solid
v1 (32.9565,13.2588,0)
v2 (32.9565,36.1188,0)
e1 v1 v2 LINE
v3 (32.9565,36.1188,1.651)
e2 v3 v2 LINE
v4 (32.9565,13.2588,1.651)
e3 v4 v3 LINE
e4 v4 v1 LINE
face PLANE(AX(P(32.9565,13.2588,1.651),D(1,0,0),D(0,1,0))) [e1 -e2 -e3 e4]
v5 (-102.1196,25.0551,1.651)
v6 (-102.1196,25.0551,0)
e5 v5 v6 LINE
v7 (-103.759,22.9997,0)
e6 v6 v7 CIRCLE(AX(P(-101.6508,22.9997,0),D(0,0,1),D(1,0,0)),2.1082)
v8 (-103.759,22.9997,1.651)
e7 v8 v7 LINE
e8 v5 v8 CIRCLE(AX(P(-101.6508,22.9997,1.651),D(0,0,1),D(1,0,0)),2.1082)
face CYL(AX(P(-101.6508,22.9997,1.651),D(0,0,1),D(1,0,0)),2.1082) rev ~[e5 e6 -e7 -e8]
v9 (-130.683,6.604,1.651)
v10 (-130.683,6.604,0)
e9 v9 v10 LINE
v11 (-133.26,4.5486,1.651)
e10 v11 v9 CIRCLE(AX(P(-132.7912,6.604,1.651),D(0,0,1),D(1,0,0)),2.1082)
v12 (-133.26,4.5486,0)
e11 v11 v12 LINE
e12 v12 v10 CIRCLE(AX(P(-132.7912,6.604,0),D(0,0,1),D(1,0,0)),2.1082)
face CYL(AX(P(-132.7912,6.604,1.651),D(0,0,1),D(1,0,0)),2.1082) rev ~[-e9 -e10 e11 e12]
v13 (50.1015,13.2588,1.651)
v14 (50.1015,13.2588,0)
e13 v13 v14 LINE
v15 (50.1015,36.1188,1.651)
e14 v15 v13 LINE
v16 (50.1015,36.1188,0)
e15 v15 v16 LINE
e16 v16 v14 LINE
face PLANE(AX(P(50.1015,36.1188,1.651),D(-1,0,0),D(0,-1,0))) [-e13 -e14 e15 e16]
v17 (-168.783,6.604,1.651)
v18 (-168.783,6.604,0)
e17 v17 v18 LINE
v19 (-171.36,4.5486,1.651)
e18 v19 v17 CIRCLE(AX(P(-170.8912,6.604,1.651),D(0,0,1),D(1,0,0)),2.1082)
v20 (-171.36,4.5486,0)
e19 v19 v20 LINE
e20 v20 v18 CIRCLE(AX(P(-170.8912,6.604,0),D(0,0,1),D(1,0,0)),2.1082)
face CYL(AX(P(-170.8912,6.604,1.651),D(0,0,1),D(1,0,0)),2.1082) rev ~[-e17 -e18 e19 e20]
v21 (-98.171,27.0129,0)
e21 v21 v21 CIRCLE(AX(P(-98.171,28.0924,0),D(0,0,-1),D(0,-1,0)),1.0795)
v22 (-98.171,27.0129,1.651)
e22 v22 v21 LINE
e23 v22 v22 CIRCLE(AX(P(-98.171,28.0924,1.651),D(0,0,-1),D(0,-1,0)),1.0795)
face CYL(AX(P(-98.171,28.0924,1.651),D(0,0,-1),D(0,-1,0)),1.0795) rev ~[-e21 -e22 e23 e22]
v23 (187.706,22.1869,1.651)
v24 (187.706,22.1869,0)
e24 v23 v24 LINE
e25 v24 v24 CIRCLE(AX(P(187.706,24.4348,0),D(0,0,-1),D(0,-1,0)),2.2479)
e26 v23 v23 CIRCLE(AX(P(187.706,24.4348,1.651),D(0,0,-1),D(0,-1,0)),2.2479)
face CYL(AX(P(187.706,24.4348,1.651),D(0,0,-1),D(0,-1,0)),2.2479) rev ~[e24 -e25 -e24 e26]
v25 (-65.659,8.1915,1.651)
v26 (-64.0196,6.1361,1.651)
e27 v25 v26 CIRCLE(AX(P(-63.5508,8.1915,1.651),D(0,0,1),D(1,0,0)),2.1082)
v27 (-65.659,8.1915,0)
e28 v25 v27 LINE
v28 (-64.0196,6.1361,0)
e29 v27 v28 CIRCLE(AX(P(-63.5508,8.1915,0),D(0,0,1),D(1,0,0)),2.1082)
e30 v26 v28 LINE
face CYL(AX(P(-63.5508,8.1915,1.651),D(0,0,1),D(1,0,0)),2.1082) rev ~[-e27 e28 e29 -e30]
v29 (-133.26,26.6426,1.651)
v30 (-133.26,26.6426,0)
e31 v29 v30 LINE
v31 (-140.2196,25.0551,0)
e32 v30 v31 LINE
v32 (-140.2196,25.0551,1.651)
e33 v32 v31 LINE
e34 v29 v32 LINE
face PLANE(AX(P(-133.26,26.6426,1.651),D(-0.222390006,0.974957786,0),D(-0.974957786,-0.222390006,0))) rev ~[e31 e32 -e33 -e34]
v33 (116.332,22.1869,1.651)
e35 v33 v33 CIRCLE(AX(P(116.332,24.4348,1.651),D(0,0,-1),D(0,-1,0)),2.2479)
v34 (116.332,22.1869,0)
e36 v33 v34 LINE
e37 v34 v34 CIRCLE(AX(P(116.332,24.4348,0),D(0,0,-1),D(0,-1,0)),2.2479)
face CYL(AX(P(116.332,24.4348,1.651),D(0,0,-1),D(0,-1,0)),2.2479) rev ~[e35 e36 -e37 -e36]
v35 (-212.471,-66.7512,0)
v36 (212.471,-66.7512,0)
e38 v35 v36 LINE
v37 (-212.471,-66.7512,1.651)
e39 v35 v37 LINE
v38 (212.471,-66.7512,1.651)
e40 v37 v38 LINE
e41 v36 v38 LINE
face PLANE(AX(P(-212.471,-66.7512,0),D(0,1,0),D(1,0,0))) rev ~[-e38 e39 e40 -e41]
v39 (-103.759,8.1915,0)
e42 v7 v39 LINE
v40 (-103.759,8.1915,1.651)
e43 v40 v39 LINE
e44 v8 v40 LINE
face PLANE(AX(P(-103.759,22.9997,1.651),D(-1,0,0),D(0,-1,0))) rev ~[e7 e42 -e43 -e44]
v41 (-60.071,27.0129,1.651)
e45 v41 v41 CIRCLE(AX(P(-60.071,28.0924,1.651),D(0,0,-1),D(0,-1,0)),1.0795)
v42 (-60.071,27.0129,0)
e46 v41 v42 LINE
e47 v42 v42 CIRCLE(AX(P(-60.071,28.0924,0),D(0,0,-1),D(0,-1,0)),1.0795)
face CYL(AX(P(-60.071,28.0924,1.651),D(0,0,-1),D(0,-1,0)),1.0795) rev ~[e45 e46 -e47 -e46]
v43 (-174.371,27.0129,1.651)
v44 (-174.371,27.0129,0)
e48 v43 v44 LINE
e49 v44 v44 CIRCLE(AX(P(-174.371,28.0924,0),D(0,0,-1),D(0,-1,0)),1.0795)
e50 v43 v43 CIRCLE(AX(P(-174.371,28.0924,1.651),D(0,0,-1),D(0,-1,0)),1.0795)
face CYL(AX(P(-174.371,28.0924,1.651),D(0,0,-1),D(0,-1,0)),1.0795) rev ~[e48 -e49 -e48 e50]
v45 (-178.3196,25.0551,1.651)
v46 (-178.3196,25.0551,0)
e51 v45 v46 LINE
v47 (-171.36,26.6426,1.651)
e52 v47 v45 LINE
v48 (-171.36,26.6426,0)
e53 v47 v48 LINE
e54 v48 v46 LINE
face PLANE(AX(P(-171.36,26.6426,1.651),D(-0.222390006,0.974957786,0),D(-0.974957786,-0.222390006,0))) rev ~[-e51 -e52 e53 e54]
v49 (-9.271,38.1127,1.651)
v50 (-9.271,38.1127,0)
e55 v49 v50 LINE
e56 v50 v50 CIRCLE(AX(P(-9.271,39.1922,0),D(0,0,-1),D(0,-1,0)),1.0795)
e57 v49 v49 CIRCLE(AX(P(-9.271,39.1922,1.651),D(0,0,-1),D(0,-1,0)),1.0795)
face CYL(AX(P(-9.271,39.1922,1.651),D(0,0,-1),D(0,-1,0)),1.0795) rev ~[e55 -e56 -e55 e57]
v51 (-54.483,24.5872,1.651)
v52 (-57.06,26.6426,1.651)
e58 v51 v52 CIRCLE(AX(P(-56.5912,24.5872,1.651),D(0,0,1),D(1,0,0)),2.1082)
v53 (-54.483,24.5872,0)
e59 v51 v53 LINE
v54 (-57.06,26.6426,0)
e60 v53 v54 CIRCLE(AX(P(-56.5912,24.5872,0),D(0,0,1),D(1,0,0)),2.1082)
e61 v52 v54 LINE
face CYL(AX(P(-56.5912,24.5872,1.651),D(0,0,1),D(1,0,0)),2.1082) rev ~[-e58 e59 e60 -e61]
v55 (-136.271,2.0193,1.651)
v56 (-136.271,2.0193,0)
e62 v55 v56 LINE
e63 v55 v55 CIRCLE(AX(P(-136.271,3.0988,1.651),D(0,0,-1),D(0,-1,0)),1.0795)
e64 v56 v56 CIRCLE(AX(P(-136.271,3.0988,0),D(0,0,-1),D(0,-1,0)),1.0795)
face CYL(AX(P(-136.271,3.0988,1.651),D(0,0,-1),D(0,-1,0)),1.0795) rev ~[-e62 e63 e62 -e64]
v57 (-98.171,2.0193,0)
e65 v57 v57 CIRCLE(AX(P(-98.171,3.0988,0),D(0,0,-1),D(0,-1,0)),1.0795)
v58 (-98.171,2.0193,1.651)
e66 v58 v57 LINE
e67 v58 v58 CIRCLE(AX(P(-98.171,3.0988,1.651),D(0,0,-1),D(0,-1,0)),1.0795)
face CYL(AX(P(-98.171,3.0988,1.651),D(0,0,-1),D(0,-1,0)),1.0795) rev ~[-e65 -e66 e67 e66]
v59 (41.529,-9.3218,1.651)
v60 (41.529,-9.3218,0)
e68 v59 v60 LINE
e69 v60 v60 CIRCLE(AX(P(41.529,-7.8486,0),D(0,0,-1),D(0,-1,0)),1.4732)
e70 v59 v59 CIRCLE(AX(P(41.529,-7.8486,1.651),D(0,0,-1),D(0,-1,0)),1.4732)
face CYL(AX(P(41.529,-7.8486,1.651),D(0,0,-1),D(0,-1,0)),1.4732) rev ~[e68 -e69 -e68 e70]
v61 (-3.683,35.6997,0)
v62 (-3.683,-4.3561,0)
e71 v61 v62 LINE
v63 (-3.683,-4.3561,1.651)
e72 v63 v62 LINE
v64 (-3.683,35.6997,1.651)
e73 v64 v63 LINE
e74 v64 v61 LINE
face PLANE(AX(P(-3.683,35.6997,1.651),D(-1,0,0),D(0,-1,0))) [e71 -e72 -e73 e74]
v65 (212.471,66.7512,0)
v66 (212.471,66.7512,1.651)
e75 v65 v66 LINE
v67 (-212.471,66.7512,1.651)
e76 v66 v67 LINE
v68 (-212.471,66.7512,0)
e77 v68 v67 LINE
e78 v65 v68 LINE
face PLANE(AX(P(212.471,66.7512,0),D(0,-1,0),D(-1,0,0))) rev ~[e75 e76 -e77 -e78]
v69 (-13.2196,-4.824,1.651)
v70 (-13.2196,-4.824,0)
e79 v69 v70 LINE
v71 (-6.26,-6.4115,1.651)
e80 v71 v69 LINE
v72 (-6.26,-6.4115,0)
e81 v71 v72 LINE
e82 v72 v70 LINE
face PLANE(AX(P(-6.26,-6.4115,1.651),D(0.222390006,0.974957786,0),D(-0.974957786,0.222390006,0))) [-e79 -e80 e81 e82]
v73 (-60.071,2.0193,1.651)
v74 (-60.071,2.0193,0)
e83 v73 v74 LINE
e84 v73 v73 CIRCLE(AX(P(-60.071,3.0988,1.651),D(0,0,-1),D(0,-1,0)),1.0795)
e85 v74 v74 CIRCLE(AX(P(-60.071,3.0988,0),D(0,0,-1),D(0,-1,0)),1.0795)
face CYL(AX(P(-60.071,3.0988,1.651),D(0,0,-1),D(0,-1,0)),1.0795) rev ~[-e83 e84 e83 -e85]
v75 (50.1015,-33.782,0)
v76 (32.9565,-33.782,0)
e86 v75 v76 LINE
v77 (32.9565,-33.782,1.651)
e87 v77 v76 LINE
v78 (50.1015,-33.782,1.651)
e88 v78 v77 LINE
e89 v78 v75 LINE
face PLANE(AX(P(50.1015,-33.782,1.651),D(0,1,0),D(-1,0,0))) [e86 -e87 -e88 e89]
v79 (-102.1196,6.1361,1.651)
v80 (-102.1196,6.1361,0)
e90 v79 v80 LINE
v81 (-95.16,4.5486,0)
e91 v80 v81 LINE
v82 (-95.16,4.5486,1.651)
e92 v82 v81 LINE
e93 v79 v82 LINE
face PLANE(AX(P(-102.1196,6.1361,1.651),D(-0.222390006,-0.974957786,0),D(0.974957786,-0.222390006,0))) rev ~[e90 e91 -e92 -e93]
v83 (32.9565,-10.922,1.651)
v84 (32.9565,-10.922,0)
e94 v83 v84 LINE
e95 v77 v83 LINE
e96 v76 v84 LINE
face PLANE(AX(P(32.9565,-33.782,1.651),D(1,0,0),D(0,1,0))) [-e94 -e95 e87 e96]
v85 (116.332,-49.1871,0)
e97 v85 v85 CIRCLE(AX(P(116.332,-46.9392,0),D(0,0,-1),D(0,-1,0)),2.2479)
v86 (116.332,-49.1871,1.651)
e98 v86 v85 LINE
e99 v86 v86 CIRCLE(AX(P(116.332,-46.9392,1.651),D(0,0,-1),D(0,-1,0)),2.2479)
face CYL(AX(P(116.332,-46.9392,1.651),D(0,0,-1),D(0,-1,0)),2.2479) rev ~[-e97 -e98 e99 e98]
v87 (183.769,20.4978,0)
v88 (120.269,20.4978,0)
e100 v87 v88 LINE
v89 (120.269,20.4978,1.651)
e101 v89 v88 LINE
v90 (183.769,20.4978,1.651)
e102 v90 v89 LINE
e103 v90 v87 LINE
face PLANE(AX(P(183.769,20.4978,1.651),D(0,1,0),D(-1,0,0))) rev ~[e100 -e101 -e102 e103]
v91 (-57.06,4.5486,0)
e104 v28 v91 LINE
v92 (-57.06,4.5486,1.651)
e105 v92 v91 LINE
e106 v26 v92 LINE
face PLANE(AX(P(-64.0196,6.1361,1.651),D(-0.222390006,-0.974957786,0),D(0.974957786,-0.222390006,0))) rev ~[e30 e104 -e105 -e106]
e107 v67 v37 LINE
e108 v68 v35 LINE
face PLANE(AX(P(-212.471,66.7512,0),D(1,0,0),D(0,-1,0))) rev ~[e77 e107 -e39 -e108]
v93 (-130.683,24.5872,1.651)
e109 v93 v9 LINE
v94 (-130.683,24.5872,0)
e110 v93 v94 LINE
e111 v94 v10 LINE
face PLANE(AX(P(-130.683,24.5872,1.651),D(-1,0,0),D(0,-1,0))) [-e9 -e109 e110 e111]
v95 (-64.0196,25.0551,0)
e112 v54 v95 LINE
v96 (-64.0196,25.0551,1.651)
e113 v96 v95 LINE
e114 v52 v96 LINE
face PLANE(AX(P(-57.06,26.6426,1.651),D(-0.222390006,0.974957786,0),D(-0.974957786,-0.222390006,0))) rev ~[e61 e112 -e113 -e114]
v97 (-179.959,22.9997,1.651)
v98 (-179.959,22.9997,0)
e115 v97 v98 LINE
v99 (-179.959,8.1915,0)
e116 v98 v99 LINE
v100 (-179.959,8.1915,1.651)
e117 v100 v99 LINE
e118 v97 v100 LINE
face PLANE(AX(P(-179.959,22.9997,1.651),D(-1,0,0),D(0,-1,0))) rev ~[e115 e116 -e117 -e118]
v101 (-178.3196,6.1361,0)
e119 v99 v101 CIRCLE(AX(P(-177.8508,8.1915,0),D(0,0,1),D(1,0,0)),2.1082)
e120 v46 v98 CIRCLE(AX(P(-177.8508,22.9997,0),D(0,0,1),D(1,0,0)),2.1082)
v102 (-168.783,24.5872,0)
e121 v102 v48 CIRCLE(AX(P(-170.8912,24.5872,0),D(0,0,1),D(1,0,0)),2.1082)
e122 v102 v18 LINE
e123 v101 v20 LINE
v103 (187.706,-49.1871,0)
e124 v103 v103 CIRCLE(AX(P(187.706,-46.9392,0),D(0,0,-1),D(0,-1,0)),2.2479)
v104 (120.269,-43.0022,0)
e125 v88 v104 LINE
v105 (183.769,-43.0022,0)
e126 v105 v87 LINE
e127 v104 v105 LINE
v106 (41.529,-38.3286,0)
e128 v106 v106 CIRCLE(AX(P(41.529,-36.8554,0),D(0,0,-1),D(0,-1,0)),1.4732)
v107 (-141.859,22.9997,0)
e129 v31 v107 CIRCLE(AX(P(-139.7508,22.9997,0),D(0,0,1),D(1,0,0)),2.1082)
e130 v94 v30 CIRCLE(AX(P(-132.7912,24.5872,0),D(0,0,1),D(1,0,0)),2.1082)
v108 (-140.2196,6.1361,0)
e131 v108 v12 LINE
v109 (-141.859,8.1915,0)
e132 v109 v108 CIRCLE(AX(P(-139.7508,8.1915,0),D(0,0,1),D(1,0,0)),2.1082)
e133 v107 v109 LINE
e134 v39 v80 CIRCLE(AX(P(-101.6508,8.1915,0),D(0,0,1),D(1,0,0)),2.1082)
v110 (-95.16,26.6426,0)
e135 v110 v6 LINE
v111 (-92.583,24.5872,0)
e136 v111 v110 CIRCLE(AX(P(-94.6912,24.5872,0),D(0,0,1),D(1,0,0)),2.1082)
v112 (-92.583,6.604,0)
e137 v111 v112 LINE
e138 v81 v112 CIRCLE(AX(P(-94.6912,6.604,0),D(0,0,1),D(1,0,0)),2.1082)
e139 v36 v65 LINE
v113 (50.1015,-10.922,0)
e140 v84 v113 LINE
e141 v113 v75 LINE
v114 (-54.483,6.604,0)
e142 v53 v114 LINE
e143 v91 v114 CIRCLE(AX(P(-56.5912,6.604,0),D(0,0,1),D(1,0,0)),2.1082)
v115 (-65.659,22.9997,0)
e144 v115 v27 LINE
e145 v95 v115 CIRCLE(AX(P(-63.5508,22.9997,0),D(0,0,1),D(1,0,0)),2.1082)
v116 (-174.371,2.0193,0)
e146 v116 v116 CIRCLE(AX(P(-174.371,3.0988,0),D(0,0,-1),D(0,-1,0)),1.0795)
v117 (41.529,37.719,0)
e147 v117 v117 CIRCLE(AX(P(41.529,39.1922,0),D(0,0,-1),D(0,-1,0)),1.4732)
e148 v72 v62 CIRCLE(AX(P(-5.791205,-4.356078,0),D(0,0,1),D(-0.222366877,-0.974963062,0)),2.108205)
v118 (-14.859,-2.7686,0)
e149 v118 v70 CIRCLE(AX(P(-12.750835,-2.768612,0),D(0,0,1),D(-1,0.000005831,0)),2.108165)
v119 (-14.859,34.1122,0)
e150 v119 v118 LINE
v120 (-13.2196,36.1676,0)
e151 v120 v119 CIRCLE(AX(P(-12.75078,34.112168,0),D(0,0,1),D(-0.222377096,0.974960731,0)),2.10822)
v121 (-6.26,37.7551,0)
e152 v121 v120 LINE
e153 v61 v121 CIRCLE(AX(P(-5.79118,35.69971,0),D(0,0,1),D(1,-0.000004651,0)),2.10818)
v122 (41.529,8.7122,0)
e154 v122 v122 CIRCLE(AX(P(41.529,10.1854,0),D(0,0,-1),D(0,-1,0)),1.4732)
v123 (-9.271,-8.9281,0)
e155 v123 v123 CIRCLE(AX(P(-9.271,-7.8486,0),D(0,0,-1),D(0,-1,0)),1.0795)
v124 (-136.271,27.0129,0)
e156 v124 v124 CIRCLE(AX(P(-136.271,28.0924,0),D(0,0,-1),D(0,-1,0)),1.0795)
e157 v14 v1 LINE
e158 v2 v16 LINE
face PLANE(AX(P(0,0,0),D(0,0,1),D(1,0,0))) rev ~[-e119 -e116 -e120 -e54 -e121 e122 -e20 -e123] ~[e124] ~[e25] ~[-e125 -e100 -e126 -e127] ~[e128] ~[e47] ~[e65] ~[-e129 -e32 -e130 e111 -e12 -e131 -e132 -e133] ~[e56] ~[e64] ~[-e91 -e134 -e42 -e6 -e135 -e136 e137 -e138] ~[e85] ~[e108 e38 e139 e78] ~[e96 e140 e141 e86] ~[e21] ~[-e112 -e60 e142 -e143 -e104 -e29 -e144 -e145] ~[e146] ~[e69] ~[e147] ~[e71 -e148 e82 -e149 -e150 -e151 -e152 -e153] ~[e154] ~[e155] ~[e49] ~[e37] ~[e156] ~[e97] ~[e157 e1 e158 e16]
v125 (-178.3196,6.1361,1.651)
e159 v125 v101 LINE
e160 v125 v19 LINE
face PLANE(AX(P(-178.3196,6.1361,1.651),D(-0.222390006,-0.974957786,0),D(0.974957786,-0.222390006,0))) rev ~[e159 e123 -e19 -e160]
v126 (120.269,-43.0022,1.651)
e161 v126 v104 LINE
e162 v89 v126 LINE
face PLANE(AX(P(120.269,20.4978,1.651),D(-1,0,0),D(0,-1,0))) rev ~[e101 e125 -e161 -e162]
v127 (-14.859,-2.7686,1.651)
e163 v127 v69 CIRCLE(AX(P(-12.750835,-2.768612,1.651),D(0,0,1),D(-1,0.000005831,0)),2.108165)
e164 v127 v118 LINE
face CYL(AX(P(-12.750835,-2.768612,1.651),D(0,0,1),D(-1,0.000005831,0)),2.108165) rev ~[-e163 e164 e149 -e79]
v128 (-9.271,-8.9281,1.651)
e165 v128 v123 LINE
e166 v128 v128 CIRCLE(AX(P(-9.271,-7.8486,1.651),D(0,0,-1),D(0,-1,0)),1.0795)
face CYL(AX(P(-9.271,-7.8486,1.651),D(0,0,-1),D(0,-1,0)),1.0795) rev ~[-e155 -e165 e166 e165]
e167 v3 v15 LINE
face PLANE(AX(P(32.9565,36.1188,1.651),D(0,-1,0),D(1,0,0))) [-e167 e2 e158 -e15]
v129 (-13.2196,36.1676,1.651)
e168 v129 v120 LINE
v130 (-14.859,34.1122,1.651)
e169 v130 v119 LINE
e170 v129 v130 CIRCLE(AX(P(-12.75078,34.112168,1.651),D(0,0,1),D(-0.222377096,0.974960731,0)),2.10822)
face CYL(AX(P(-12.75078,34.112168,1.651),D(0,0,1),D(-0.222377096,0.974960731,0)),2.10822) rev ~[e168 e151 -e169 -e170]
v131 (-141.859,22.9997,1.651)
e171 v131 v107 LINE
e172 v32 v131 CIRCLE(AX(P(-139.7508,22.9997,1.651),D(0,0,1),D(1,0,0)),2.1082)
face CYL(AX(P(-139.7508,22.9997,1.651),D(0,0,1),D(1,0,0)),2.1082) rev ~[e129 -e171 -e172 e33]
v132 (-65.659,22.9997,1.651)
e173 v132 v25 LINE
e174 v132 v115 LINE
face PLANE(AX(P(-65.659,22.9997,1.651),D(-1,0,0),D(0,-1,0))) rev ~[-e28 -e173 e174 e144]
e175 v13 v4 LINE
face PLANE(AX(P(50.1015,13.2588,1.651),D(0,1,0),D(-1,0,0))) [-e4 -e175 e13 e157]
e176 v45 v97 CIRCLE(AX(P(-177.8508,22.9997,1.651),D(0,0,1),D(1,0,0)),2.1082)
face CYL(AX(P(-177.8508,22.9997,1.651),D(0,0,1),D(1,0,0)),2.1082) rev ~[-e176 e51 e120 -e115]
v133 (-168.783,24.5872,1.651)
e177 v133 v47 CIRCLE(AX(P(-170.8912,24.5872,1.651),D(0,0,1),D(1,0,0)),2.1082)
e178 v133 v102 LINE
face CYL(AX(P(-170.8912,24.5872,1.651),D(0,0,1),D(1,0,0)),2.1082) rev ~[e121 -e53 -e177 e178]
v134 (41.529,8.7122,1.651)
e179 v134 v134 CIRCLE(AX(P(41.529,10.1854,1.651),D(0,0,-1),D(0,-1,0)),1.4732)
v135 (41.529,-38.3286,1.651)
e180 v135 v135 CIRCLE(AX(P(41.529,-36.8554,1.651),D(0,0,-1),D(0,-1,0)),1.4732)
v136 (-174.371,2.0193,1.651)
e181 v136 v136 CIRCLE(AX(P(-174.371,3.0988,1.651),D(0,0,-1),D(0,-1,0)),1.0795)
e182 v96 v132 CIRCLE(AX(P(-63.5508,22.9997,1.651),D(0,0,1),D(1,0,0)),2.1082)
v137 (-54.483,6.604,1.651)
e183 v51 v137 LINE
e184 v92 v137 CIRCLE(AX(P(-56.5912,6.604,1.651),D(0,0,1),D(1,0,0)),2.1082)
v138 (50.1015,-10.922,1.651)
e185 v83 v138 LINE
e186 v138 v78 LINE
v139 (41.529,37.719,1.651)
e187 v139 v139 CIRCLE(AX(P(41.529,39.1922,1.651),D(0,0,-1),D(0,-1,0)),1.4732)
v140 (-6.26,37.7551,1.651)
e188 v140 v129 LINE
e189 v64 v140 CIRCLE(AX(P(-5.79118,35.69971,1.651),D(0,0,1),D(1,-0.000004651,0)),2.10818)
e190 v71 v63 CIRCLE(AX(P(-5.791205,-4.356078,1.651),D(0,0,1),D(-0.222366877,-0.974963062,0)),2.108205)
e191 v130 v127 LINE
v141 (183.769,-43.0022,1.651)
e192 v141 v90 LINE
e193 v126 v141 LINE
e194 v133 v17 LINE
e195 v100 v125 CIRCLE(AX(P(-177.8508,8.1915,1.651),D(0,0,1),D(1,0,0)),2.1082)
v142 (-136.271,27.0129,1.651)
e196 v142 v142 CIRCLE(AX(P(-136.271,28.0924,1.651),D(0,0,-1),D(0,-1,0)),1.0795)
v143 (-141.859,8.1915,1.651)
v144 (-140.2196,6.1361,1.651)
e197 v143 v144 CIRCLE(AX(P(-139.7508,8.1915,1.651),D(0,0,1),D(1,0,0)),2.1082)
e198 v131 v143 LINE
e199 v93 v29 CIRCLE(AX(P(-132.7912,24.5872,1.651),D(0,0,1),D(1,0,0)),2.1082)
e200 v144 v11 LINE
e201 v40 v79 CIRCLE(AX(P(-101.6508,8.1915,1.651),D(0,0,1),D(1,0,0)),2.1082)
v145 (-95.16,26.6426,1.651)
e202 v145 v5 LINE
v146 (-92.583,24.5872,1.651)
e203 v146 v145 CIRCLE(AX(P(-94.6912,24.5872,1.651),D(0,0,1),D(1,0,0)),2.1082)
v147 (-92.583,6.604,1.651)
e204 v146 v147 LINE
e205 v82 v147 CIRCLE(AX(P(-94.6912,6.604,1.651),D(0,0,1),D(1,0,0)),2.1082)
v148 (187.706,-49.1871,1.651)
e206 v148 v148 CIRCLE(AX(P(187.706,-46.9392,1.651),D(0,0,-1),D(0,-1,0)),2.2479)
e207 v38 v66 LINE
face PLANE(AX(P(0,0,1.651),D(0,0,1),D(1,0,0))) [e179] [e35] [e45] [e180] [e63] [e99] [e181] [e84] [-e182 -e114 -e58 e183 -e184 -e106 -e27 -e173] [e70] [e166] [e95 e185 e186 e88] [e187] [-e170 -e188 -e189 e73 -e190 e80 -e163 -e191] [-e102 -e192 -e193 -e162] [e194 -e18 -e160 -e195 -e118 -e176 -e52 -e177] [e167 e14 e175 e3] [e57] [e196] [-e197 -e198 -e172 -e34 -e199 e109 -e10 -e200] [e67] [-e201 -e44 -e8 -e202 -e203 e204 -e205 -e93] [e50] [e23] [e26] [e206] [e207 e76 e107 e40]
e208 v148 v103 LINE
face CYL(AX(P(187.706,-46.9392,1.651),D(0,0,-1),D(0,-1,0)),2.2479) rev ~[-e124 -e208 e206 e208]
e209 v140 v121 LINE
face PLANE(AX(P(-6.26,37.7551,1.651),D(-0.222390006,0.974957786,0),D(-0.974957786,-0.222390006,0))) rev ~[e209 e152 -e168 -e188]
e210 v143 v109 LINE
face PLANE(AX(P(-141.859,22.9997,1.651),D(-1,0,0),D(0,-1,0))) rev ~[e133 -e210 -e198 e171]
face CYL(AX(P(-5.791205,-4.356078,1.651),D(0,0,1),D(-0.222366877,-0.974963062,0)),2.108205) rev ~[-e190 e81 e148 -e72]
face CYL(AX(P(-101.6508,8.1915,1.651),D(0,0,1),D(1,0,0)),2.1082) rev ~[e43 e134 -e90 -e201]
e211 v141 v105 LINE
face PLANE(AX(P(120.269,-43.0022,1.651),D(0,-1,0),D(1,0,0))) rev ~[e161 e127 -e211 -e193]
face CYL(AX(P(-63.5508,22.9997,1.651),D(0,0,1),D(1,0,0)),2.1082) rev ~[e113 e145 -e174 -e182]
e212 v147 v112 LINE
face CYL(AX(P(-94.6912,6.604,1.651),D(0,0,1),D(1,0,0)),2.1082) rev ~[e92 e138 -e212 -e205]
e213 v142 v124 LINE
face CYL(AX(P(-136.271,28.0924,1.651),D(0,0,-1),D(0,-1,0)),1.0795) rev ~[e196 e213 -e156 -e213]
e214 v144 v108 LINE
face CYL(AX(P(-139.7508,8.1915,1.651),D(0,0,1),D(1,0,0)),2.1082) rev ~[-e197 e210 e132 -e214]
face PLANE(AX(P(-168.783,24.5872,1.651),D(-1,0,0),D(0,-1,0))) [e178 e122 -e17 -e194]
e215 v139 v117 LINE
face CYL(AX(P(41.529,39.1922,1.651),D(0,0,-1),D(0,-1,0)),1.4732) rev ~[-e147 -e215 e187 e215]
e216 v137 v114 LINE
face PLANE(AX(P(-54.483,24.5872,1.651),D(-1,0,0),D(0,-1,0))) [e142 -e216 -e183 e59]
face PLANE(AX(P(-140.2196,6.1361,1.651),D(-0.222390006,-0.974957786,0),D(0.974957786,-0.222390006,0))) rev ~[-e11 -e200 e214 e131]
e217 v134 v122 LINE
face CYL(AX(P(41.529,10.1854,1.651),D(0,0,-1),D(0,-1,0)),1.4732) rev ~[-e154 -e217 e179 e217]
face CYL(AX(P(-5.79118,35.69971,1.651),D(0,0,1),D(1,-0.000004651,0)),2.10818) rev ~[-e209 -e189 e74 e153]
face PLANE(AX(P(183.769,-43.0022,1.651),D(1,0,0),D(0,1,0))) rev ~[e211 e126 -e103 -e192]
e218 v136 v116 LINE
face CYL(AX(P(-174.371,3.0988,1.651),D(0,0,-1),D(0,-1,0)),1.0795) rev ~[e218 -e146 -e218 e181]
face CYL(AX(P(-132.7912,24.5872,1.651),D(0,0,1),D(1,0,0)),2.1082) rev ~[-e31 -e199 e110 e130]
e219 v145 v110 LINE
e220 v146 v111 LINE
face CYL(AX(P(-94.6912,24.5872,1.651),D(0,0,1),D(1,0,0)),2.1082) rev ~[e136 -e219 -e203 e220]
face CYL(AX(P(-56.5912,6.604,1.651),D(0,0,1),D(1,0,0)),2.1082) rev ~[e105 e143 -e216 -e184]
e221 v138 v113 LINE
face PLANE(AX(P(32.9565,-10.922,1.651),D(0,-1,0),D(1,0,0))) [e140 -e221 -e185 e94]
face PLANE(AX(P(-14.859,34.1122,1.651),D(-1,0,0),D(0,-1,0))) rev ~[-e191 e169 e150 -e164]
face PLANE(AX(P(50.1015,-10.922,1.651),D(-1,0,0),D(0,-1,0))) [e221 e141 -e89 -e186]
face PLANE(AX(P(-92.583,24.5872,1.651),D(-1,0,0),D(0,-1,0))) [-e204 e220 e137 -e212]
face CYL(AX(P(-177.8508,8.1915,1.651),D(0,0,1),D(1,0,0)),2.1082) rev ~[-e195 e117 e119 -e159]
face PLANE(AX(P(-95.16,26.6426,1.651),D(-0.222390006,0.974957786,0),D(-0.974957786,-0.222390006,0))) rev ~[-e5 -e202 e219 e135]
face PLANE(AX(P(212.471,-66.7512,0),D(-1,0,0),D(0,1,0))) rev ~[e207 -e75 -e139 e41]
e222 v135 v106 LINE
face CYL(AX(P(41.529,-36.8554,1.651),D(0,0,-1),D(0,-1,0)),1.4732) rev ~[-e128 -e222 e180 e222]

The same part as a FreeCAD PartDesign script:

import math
import FreeCAD as App
import Part
import Sketcher
Q = App.Units.Quantity


def add_polygon(sketch, points):
    """Adds a closed chain of lines whose ends are joined by coincident constraints."""
    first, n = sketch.GeometryCount, len(points)
    for a, b in zip(points, points[1:] + points[:1]):
        sketch.addGeometry(Part.LineSegment(App.Vector(*a, 0), App.Vector(*b, 0)), False)
    for i in range(n):
        sketch.addConstraint(Sketcher.Constraint("Coincident", first + i, 2, first + (i + 1) % n, 1))

doc = App.newDocument("Part")
body = doc.addObject("PartDesign::Body", "Body")

sketch1 = body.newObject("Sketcher::SketchObject", "Sketch")
sketch1.AttachmentSupport = (doc.getObject("XY_Plane"), [""])
sketch1.MapMode = "FlatFace"
add_polygon(sketch1, [(-212, 67), (-212, -67), (212, -67), (212, 67)])
sketch1.addConstraint([
    Sketcher.Constraint("Vertical", 0),
    Sketcher.Constraint("Horizontal", 1),
    Sketcher.Constraint("Vertical", 2),
    Sketcher.Constraint("Horizontal", 3),
    Sketcher.Constraint("Symmetric", 0, 2, 2, 2, -1, 1),
    Sketcher.Constraint("DistanceX", 1, 1, 1, 2, Q("16.73 in")),
    Sketcher.Constraint("DistanceY", 0, 2, 0, 1, Q("5.256 in")),
])
pad1 = body.newObject("PartDesign::Pad", "Pad")
pad1.Profile = sketch1
pad1.Length = Q("0.065 in")

sketch2 = body.newObject("Sketcher::SketchObject", "Sketch001")
sketch2.AttachmentSupport = (doc.getObject("XY_Plane"), [""])
sketch2.MapMode = "FlatFace"
sketch2.AttachmentOffset = App.Placement(App.Vector(0, 0, 0.065 * 25.4), App.Rotation())
sketch2.addGeometry([
    Part.Circle(App.Vector(187.7, 24.4, 0), App.Vector(0, 0, 1), 2.2),
    Part.Circle(App.Vector(116.3, 24.4, 0), App.Vector(0, 0, 1), 2.2),
    Part.Circle(App.Vector(116.3, -46.9, 0), App.Vector(0, 0, 1), 2.2),
    Part.Circle(App.Vector(187.7, -46.9, 0), App.Vector(0, 0, 1), 2.2),
], False)
sketch2.addConstraint([
    Sketcher.Constraint("Equal", 0, 1),
    Sketcher.Constraint("Equal", 1, 2),
    Sketcher.Constraint("Equal", 2, 3),
    Sketcher.Constraint("Horizontal", 0, 3, 1, 3),
    Sketcher.Constraint("Horizontal", 2, 3, 3, 3),
    Sketcher.Constraint("Vertical", 1, 3, 2, 3),
    Sketcher.Constraint("Vertical", 0, 3, 3, 3),
    Sketcher.Constraint("Diameter", 0, Q("0.177 in")),
    Sketcher.Constraint("DistanceX", -1, 1, 0, 3, Q("7.39 in")),
    Sketcher.Constraint("DistanceX", -1, 1, 1, 3, Q("4.58 in")),
    Sketcher.Constraint("DistanceY", 2, 3, 1, 3, Q("2.81 in")),
    Sketcher.Constraint("DistanceY", -1, 1, 0, 3, Q("0.962 in")),
])
doc.recompute()
hole = body.newObject("PartDesign::Hole", "Hole")
hole.Profile = sketch2
hole.ThreadType = "None"
hole.Diameter = Q("0.177 in")
hole.DepthType = "ThroughAll"

sketch3 = body.newObject("Sketcher::SketchObject", "Sketch002")
sketch3.AttachmentSupport = (doc.getObject("XY_Plane"), [""])
sketch3.MapMode = "FlatFace"
sketch3.AttachmentOffset = App.Placement(App.Vector(0, 0, 0.065 * 25.4), App.Rotation())
add_polygon(sketch3, [(120, 20), (120, -43), (184, -43), (184, 20)])
sketch3.addConstraint([
    Sketcher.Constraint("Vertical", 0),
    Sketcher.Constraint("Horizontal", 1),
    Sketcher.Constraint("Vertical", 2),
    Sketcher.Constraint("Horizontal", 3),
    Sketcher.Constraint("Equal", 3, 0),
    Sketcher.Constraint("DistanceX", 1, 1, 1, 2, Q("2.5 in")),
    Sketcher.Constraint("DistanceX", -1, 1, 0, 2, Q("4.735 in")),
    Sketcher.Constraint("DistanceY", 0, 2, -1, 1, Q("1.693 in")),
])
pocket1 = body.newObject("PartDesign::Pocket", "Pocket")
pocket1.Profile = sketch3
pocket1.Type = "ThroughAll"

sketch4 = body.newObject("Sketcher::SketchObject", "Sketch003")
sketch4.AttachmentSupport = (doc.getObject("XY_Plane"), [""])
sketch4.MapMode = "FlatFace"
sketch4.AttachmentOffset = App.Placement(App.Vector(0, 0, 0.065 * 25.4), App.Rotation())
sketch4.addGeometry([
    Part.Circle(App.Vector(-174.4, 28.1, 0), App.Vector(0, 0, 1), 1.1),
    Part.Circle(App.Vector(-174.4, 3.1, 0), App.Vector(0, 0, 1), 1.1),
    Part.Circle(App.Vector(-136.3, 3.1, 0), App.Vector(0, 0, 1), 1.1),
    Part.Circle(App.Vector(-136.3, 28.1, 0), App.Vector(0, 0, 1), 1.1),
    Part.Circle(App.Vector(-98.2, 28.1, 0), App.Vector(0, 0, 1), 1.1),
    Part.Circle(App.Vector(-98.2, 3.1, 0), App.Vector(0, 0, 1), 1.1),
    Part.Circle(App.Vector(-60.1, 28.1, 0), App.Vector(0, 0, 1), 1.1),
    Part.Circle(App.Vector(-60.1, 3.1, 0), App.Vector(0, 0, 1), 1.1),
], False)
sketch4.addConstraint([
    Sketcher.Constraint("Equal", 0, 1),
    Sketcher.Constraint("Equal", 1, 2),
    Sketcher.Constraint("Equal", 2, 3),
    Sketcher.Constraint("Equal", 3, 4),
    Sketcher.Constraint("Equal", 4, 5),
    Sketcher.Constraint("Equal", 5, 6),
    Sketcher.Constraint("Equal", 6, 7),
    Sketcher.Constraint("Horizontal", 1, 3, 2, 3),
    Sketcher.Constraint("Horizontal", 0, 3, 3, 3),
    Sketcher.Constraint("Horizontal", 3, 3, 4, 3),
    Sketcher.Constraint("Horizontal", 2, 3, 5, 3),
    Sketcher.Constraint("Horizontal", 4, 3, 6, 3),
    Sketcher.Constraint("Horizontal", 5, 3, 7, 3),
    Sketcher.Constraint("Vertical", 0, 3, 1, 3),
    Sketcher.Constraint("Vertical", 2, 3, 3, 3),
    Sketcher.Constraint("Vertical", 4, 3, 5, 3),
    Sketcher.Constraint("Vertical", 6, 3, 7, 3),
    Sketcher.Constraint("Diameter", 0, Q("0.085 in")),
    Sketcher.Constraint("DistanceX", 0, 3, 4, 3, Q("3 in")),
    Sketcher.Constraint("DistanceX", 3, 3, 6, 3, Q("3 in")),
    Sketcher.Constraint("DistanceX", 1, 3, 2, 3, Q("1.5 in")),
    Sketcher.Constraint("DistanceX", 0, 3, -1, 1, Q("6.865 in")),
    Sketcher.Constraint("DistanceY", -1, 1, 0, 3, Q("1.106 in")),
    Sketcher.Constraint("DistanceY", -1, 1, 1, 3, Q("0.122 in")),
])
doc.recompute()
hole2 = body.newObject("PartDesign::Hole", "Hole001")
hole2.Profile = sketch4
hole2.ThreadType = "None"
hole2.Diameter = Q("0.085 in")
hole2.DepthType = "Dimension"
hole2.Depth = Q("0.349 in")
hole2.DrillPoint = "Angled"
hole2.DrillPointAngle = 118

sketch5 = body.newObject("Sketcher::SketchObject", "Sketch004")
sketch5.AttachmentSupport = (doc.getObject("XY_Plane"), [""])
sketch5.MapMode = "FlatFace"
sketch5.AttachmentOffset = App.Placement(App.Vector(0, 0, 0.065 * 25.4), App.Rotation())
sketch5.addGeometry([
    Part.Circle(App.Vector(41.5, 39.2, 0), App.Vector(0, 0, 1), 1.5),
    Part.Circle(App.Vector(41.5, 10.2, 0), App.Vector(0, 0, 1), 1.5),
    Part.Circle(App.Vector(41.5, -7.8, 0), App.Vector(0, 0, 1), 1.5),
    Part.Circle(App.Vector(41.5, -36.9, 0), App.Vector(0, 0, 1), 1.5),
], False)
sketch5.addConstraint([
    Sketcher.Constraint("Equal", 0, 1),
    Sketcher.Constraint("Equal", 1, 2),
    Sketcher.Constraint("Equal", 2, 3),
    Sketcher.Constraint("Vertical", 0, 3, 1, 3),
    Sketcher.Constraint("Vertical", 1, 3, 2, 3),
    Sketcher.Constraint("Vertical", 2, 3, 3, 3),
    Sketcher.Constraint("Diameter", 0, Q("0.116 in")),
    Sketcher.Constraint("DistanceY", 2, 3, 1, 3, Q("0.71 in")),
    Sketcher.Constraint("DistanceX", -1, 1, 0, 3, Q("1.635 in")),
    Sketcher.Constraint("DistanceY", -1, 1, 0, 3, Q("1.543 in")),
    Sketcher.Constraint("DistanceY", -1, 1, 1, 3, Q("0.401 in")),
    Sketcher.Constraint("DistanceY", 3, 3, -1, 1, Q("1.451 in")),
])
doc.recompute()
hole3 = body.newObject("PartDesign::Hole", "Hole002")
hole3.Profile = sketch5
hole3.ThreadType = "None"
hole3.Diameter = Q("0.116 in")
hole3.DepthType = "ThroughAll"

sketch6 = body.newObject("Sketcher::SketchObject", "Sketch005")
sketch6.AttachmentSupport = (doc.getObject("XY_Plane"), [""])
sketch6.MapMode = "FlatFace"
sketch6.AttachmentOffset = App.Placement(App.Vector(0, 0, 0.065 * 25.4), App.Rotation())
add_polygon(sketch6, [(50, 36), (33, 36), (33, 13), (50, 13)])
add_polygon(sketch6, [(50, -11), (33, -11), (33, -34), (50, -34)])
sketch6.addConstraint([
    Sketcher.Constraint("Horizontal", 0),
    Sketcher.Constraint("Vertical", 1),
    Sketcher.Constraint("Horizontal", 2),
    Sketcher.Constraint("Vertical", 3),
    Sketcher.Constraint("Horizontal", 4),
    Sketcher.Constraint("Vertical", 5),
    Sketcher.Constraint("Horizontal", 6),
    Sketcher.Constraint("Vertical", 7),
    Sketcher.Constraint("Vertical", 1, 2, 4, 2),
    Sketcher.Constraint("Vertical", 3, 2, 6, 2),
    Sketcher.Constraint("Equal", 3, 5),
    Sketcher.Constraint("DistanceY", 1, 2, 1, 1, Q("0.9 in")),
    Sketcher.Constraint("DistanceX", 0, 2, 0, 1, Q("0.675 in")),
    Sketcher.Constraint("DistanceY", 4, 2, 0, 2, Q("1.852 in")),
    Sketcher.Constraint("DistanceY", 4, 2, -1, 1, Q("0.43 in")),
    Sketcher.Constraint("DistanceX", -1, 1, 0, 2, Q("1.2975 in")),
])
pocket2 = body.newObject("PartDesign::Pocket", "Pocket001")
pocket2.Profile = sketch6
pocket2.Type = "ThroughAll"

sketch7 = body.newObject("Sketcher::SketchObject", "Sketch006")
sketch7.AttachmentSupport = (doc.getObject("XY_Plane"), [""])
sketch7.MapMode = "FlatFace"
sketch7.AttachmentOffset = App.Placement(App.Vector(0, 0, 0.065 * 25.4), App.Rotation())
sketch7.addGeometry([
    Part.Circle(App.Vector(-9.3, 39.2, 0), App.Vector(0, 0, 1), 1.1),
    Part.Circle(App.Vector(-9.3, -7.8, 0), App.Vector(0, 0, 1), 1.1),
], False)
sketch7.addConstraint([
    Sketcher.Constraint("Equal", 0, 1),
    Sketcher.Constraint("Vertical", 0, 3, 1, 3),
    Sketcher.Constraint("Diameter", 0, Q("0.085 in")),
    Sketcher.Constraint("DistanceX", 0, 3, -1, 1, Q("0.365 in")),
    Sketcher.Constraint("DistanceY", -1, 1, 0, 3, Q("1.543 in")),
    Sketcher.Constraint("DistanceY", 1, 3, -1, 1, Q("0.309 in")),
])
doc.recompute()
hole4 = body.newObject("PartDesign::Hole", "Hole003")
hole4.Profile = sketch7
hole4.ThreadType = "None"
hole4.Diameter = Q("0.085 in")
hole4.DepthType = "ThroughAll"

sketch8 = body.newObject("Sketcher::SketchObject", "Sketch007")
sketch8.AttachmentSupport = (doc.getObject("XY_Plane"), [""])
sketch8.MapMode = "FlatFace"
sketch8.AttachmentOffset = App.Placement(App.Vector(0, 0, 0.065 * 25.4), App.Rotation())
sketch8.addGeometry([
    Part.LineSegment(App.Vector(-3.7, -4.4, 0), App.Vector(-3.7, 35.7, 0)),
    Part.ArcOfCircle(Part.Circle(App.Vector(-5.8, 35.7, 0), App.Vector(0, 0, 1), 2.1), math.radians(0), math.radians(103)),
    Part.LineSegment(App.Vector(-6.3, 37.8, 0), App.Vector(-13.2, 36.2, 0)),
    Part.ArcOfCircle(Part.Circle(App.Vector(-12.8, 34.1, 0), App.Vector(0, 0, 1), 2.1), math.radians(103), math.radians(180)),
    Part.LineSegment(App.Vector(-14.9, 34.1, 0), App.Vector(-14.9, -2.8, 0)),
    Part.ArcOfCircle(Part.Circle(App.Vector(-12.8, -2.8, 0), App.Vector(0, 0, 1), 2.1), math.radians(180), math.radians(257)),
    Part.LineSegment(App.Vector(-13.2, -4.8, 0), App.Vector(-6.3, -6.4, 0)),
    Part.ArcOfCircle(Part.Circle(App.Vector(-5.8, -4.4, 0), App.Vector(0, 0, 1), 2.1), math.radians(-103), math.radians(0)),
], False)
sketch8.addConstraint([
    Sketcher.Constraint("Tangent", 0, 2, 1, 1),
    Sketcher.Constraint("Tangent", 1, 2, 2, 1),
    Sketcher.Constraint("Tangent", 2, 2, 3, 1),
    Sketcher.Constraint("Tangent", 3, 2, 4, 1),
    Sketcher.Constraint("Tangent", 4, 2, 5, 1),
    Sketcher.Constraint("Tangent", 5, 2, 6, 1),
    Sketcher.Constraint("Tangent", 6, 2, 7, 1),
    Sketcher.Constraint("Tangent", 7, 2, 0, 1),
    Sketcher.Constraint("Vertical", 0),
    Sketcher.Constraint("Vertical", 4),
    Sketcher.Constraint("Equal", 1, 3),
    Sketcher.Constraint("Equal", 3, 5),
    Sketcher.Constraint("Equal", 5, 7),
    Sketcher.Constraint("Vertical", 2, 2, 5, 2),
    Sketcher.Constraint("Radius", 1, Q("0.083 in")),
    Sketcher.Constraint("DistanceY", 0, 1, 0, 2, Q("1.577 in")),
    Sketcher.Constraint("DistanceY", 4, 2, 4, 1, Q("1.452 in")),
    Sketcher.Constraint("DistanceX", 3, 2, 0, 2, Q("0.44 in")),
    Sketcher.Constraint("DistanceX", 1, 3, -1, 1, Q("0.228 in")),
    Sketcher.Constraint("DistanceY", -1, 1, 3, 3, Q("1.343 in")),
])
pocket3 = body.newObject("PartDesign::Pocket", "Pocket002")
pocket3.Profile = sketch8
pocket3.Type = "ThroughAll"

sketch9 = body.newObject("Sketcher::SketchObject", "Sketch008")
sketch9.AttachmentSupport = (doc.getObject("XY_Plane"), [""])
sketch9.MapMode = "FlatFace"
sketch9.AttachmentOffset = App.Placement(App.Vector(0, 0, 0.065 * 25.4), App.Rotation())
sketch9.addGeometry([
    Part.ArcOfCircle(Part.Circle(App.Vector(-170.9, 24.6, 0), App.Vector(0, 0, 1), 2.1), math.radians(0), math.radians(103)),
    Part.LineSegment(App.Vector(-171.4, 26.6, 0), App.Vector(-178.3, 25.1, 0)),
    Part.ArcOfCircle(Part.Circle(App.Vector(-177.9, 23, 0), App.Vector(0, 0, 1), 2.1), math.radians(103), math.radians(180)),
    Part.LineSegment(App.Vector(-180, 23, 0), App.Vector(-180, 8.2, 0)),
    Part.ArcOfCircle(Part.Circle(App.Vector(-177.9, 8.2, 0), App.Vector(0, 0, 1), 2.1), math.radians(180), math.radians(257)),
    Part.LineSegment(App.Vector(-178.3, 6.1, 0), App.Vector(-171.4, 4.5, 0)),
    Part.ArcOfCircle(Part.Circle(App.Vector(-170.9, 6.6, 0), App.Vector(0, 0, 1), 2.1), math.radians(-103), math.radians(0)),
    Part.LineSegment(App.Vector(-168.8, 6.6, 0), App.Vector(-168.8, 24.6, 0)),
    Part.ArcOfCircle(Part.Circle(App.Vector(-132.8, 24.6, 0), App.Vector(0, 0, 1), 2.1), math.radians(0), math.radians(103)),
    Part.LineSegment(App.Vector(-133.3, 26.6, 0), App.Vector(-140.2, 25.1, 0)),
    Part.ArcOfCircle(Part.Circle(App.Vector(-139.8, 23, 0), App.Vector(0, 0, 1), 2.1), math.radians(103), math.radians(180)),
    Part.LineSegment(App.Vector(-141.9, 23, 0), App.Vector(-141.9, 8.2, 0)),
    Part.ArcOfCircle(Part.Circle(App.Vector(-139.8, 8.2, 0), App.Vector(0, 0, 1), 2.1), math.radians(180), math.radians(257)),
    Part.LineSegment(App.Vector(-140.2, 6.1, 0), App.Vector(-133.3, 4.5, 0)),
    Part.ArcOfCircle(Part.Circle(App.Vector(-132.8, 6.6, 0), App.Vector(0, 0, 1), 2.1), math.radians(-103), math.radians(0)),
    Part.LineSegment(App.Vector(-130.7, 6.6, 0), App.Vector(-130.7, 24.6, 0)),
    Part.ArcOfCircle(Part.Circle(App.Vector(-94.7, 24.6, 0), App.Vector(0, 0, 1), 2.1), math.radians(0), math.radians(103)),
    Part.LineSegment(App.Vector(-95.2, 26.6, 0), App.Vector(-102.1, 25.1, 0)),
    Part.ArcOfCircle(Part.Circle(App.Vector(-101.7, 23, 0), App.Vector(0, 0, 1), 2.1), math.radians(103), math.radians(180)),
    Part.LineSegment(App.Vector(-103.8, 23, 0), App.Vector(-103.8, 8.2, 0)),
    Part.ArcOfCircle(Part.Circle(App.Vector(-101.7, 8.2, 0), App.Vector(0, 0, 1), 2.1), math.radians(180), math.radians(257)),
    Part.LineSegment(App.Vector(-102.1, 6.1, 0), App.Vector(-95.2, 4.5, 0)),
    Part.ArcOfCircle(Part.Circle(App.Vector(-94.7, 6.6, 0), App.Vector(0, 0, 1), 2.1), math.radians(-103), math.radians(0)),
    Part.LineSegment(App.Vector(-92.6, 6.6, 0), App.Vector(-92.6, 24.6, 0)),
    Part.ArcOfCircle(Part.Circle(App.Vector(-56.6, 24.6, 0), App.Vector(0, 0, 1), 2.1), math.radians(0), math.radians(103)),
    Part.LineSegment(App.Vector(-57.1, 26.6, 0), App.Vector(-64, 25.1, 0)),
    Part.ArcOfCircle(Part.Circle(App.Vector(-63.6, 23, 0), App.Vector(0, 0, 1), 2.1), math.radians(103), math.radians(180)),
    Part.LineSegment(App.Vector(-65.7, 23, 0), App.Vector(-65.7, 8.2, 0)),
    Part.ArcOfCircle(Part.Circle(App.Vector(-63.6, 8.2, 0), App.Vector(0, 0, 1), 2.1), math.radians(180), math.radians(257)),
    Part.LineSegment(App.Vector(-64, 6.1, 0), App.Vector(-57.1, 4.5, 0)),
    Part.ArcOfCircle(Part.Circle(App.Vector(-56.6, 6.6, 0), App.Vector(0, 0, 1), 2.1), math.radians(-103), math.radians(0)),
    Part.LineSegment(App.Vector(-54.5, 6.6, 0), App.Vector(-54.5, 24.6, 0)),
], False)
sketch9.addConstraint([
    Sketcher.Constraint("Tangent", 0, 2, 1, 1),
    Sketcher.Constraint("Tangent", 1, 2, 2, 1),
    Sketcher.Constraint("Tangent", 2, 2, 3, 1),
    Sketcher.Constraint("Tangent", 3, 2, 4, 1),
    Sketcher.Constraint("Tangent", 4, 2, 5, 1),
    Sketcher.Constraint("Tangent", 5, 2, 6, 1),
    Sketcher.Constraint("Tangent", 6, 2, 7, 1),
    Sketcher.Constraint("Tangent", 7, 2, 0, 1),
    Sketcher.Constraint("Tangent", 8, 2, 9, 1),
    Sketcher.Constraint("Tangent", 9, 2, 10, 1),
    Sketcher.Constraint("Tangent", 10, 2, 11, 1),
    Sketcher.Constraint("Tangent", 11, 2, 12, 1),
    Sketcher.Constraint("Tangent", 12, 2, 13, 1),
    Sketcher.Constraint("Tangent", 13, 2, 14, 1),
    Sketcher.Constraint("Tangent", 14, 2, 15, 1),
    Sketcher.Constraint("Tangent", 15, 2, 8, 1),
    Sketcher.Constraint("Tangent", 16, 2, 17, 1),
    Sketcher.Constraint("Tangent", 17, 2, 18, 1),
    Sketcher.Constraint("Tangent", 18, 2, 19, 1),
    Sketcher.Constraint("Tangent", 19, 2, 20, 1),
    Sketcher.Constraint("Tangent", 20, 2, 21, 1),
    Sketcher.Constraint("Tangent", 21, 2, 22, 1),
    Sketcher.Constraint("Tangent", 22, 2, 23, 1),
    Sketcher.Constraint("Tangent", 23, 2, 16, 1),
    Sketcher.Constraint("Tangent", 24, 2, 25, 1),
    Sketcher.Constraint("Tangent", 25, 2, 26, 1),
    Sketcher.Constraint("Tangent", 26, 2, 27, 1),
    Sketcher.Constraint("Tangent", 27, 2, 28, 1),
    Sketcher.Constraint("Tangent", 28, 2, 29, 1),
    Sketcher.Constraint("Tangent", 29, 2, 30, 1),
    Sketcher.Constraint("Tangent", 30, 2, 31, 1),
    Sketcher.Constraint("Tangent", 31, 2, 24, 1),
    Sketcher.Constraint("Vertical", 3),
    Sketcher.Constraint("Vertical", 7),
    Sketcher.Constraint("Vertical", 11),
    Sketcher.Constraint("Vertical", 15),
    Sketcher.Constraint("Vertical", 19),
    Sketcher.Constraint("Vertical", 23),
    Sketcher.Constraint("Vertical", 27),
    Sketcher.Constraint("Vertical", 31),
    Sketcher.Constraint("Equal", 0, 2),
    Sketcher.Constraint("Equal", 2, 4),
    Sketcher.Constraint("Equal", 4, 6),
    Sketcher.Constraint("Equal", 6, 8),
    Sketcher.Constraint("Equal", 8, 10),
    Sketcher.Constraint("Equal", 10, 12),
    Sketcher.Constraint("Equal", 12, 14),
    Sketcher.Constraint("Equal", 14, 16),
    Sketcher.Constraint("Equal", 16, 18),
    Sketcher.Constraint("Equal", 18, 20),
    Sketcher.Constraint("Equal", 20, 22),
    Sketcher.Constraint("Equal", 22, 24),
    Sketcher.Constraint("Equal", 24, 26),
    Sketcher.Constraint("Equal", 26, 28),
    Sketcher.Constraint("Equal", 28, 30),
    Sketcher.Constraint("Parallel", 1, 9),
    Sketcher.Constraint("Parallel", 5, 13),
    Sketcher.Constraint("Parallel", 9, 17),
    Sketcher.Constraint("Parallel", 13, 21),
    Sketcher.Constraint("Parallel", 17, 25),
    Sketcher.Constraint("Parallel", 21, 29),
    Sketcher.Constraint("Horizontal", 0, 3, 8, 3),
    Sketcher.Constraint("Horizontal", 2, 3, 10, 3),
    Sketcher.Constraint("Horizontal", 4, 3, 12, 3),
    Sketcher.Constraint("Horizontal", 8, 3, 16, 3),
    Sketcher.Constraint("Horizontal", 10, 3, 18, 3),
    Sketcher.Constraint("Horizontal", 12, 3, 20, 3),
    Sketcher.Constraint("Horizontal", 16, 3, 24, 3),
    Sketcher.Constraint("Horizontal", 18, 3, 26, 3),
    Sketcher.Constraint("Horizontal", 20, 3, 28, 3),
    Sketcher.Constraint("Vertical", 1, 2, 4, 2),
    Sketcher.Constraint("Radius", 0, Q("0.083 in")),
    Sketcher.Constraint("DistanceX", 0, 3, 8, 3, Q("1.5 in")),
    Sketcher.Constraint("DistanceX", 8, 3, 16, 3, Q("1.5 in")),
    Sketcher.Constraint("DistanceX", 16, 3, 24, 3, Q("1.5 in")),
    Sketcher.Constraint("DistanceY", 3, 2, 3, 1, Q("0.583 in")),
    Sketcher.Constraint("DistanceY", 7, 1, 7, 2, Q("0.708 in")),
    Sketcher.Constraint("DistanceX", 3, 2, 6, 2, Q("0.44 in")),
    Sketcher.Constraint("DistanceY", -1, 1, 6, 3, Q("0.26 in")),
    Sketcher.Constraint("DistanceX", 0, 3, -1, 1, Q("6.728 in")),
])
pocket4 = body.newObject("PartDesign::Pocket", "Pocket003")
pocket4.Profile = sketch9
pocket4.Length = Q("1 in")

doc.recompute()
